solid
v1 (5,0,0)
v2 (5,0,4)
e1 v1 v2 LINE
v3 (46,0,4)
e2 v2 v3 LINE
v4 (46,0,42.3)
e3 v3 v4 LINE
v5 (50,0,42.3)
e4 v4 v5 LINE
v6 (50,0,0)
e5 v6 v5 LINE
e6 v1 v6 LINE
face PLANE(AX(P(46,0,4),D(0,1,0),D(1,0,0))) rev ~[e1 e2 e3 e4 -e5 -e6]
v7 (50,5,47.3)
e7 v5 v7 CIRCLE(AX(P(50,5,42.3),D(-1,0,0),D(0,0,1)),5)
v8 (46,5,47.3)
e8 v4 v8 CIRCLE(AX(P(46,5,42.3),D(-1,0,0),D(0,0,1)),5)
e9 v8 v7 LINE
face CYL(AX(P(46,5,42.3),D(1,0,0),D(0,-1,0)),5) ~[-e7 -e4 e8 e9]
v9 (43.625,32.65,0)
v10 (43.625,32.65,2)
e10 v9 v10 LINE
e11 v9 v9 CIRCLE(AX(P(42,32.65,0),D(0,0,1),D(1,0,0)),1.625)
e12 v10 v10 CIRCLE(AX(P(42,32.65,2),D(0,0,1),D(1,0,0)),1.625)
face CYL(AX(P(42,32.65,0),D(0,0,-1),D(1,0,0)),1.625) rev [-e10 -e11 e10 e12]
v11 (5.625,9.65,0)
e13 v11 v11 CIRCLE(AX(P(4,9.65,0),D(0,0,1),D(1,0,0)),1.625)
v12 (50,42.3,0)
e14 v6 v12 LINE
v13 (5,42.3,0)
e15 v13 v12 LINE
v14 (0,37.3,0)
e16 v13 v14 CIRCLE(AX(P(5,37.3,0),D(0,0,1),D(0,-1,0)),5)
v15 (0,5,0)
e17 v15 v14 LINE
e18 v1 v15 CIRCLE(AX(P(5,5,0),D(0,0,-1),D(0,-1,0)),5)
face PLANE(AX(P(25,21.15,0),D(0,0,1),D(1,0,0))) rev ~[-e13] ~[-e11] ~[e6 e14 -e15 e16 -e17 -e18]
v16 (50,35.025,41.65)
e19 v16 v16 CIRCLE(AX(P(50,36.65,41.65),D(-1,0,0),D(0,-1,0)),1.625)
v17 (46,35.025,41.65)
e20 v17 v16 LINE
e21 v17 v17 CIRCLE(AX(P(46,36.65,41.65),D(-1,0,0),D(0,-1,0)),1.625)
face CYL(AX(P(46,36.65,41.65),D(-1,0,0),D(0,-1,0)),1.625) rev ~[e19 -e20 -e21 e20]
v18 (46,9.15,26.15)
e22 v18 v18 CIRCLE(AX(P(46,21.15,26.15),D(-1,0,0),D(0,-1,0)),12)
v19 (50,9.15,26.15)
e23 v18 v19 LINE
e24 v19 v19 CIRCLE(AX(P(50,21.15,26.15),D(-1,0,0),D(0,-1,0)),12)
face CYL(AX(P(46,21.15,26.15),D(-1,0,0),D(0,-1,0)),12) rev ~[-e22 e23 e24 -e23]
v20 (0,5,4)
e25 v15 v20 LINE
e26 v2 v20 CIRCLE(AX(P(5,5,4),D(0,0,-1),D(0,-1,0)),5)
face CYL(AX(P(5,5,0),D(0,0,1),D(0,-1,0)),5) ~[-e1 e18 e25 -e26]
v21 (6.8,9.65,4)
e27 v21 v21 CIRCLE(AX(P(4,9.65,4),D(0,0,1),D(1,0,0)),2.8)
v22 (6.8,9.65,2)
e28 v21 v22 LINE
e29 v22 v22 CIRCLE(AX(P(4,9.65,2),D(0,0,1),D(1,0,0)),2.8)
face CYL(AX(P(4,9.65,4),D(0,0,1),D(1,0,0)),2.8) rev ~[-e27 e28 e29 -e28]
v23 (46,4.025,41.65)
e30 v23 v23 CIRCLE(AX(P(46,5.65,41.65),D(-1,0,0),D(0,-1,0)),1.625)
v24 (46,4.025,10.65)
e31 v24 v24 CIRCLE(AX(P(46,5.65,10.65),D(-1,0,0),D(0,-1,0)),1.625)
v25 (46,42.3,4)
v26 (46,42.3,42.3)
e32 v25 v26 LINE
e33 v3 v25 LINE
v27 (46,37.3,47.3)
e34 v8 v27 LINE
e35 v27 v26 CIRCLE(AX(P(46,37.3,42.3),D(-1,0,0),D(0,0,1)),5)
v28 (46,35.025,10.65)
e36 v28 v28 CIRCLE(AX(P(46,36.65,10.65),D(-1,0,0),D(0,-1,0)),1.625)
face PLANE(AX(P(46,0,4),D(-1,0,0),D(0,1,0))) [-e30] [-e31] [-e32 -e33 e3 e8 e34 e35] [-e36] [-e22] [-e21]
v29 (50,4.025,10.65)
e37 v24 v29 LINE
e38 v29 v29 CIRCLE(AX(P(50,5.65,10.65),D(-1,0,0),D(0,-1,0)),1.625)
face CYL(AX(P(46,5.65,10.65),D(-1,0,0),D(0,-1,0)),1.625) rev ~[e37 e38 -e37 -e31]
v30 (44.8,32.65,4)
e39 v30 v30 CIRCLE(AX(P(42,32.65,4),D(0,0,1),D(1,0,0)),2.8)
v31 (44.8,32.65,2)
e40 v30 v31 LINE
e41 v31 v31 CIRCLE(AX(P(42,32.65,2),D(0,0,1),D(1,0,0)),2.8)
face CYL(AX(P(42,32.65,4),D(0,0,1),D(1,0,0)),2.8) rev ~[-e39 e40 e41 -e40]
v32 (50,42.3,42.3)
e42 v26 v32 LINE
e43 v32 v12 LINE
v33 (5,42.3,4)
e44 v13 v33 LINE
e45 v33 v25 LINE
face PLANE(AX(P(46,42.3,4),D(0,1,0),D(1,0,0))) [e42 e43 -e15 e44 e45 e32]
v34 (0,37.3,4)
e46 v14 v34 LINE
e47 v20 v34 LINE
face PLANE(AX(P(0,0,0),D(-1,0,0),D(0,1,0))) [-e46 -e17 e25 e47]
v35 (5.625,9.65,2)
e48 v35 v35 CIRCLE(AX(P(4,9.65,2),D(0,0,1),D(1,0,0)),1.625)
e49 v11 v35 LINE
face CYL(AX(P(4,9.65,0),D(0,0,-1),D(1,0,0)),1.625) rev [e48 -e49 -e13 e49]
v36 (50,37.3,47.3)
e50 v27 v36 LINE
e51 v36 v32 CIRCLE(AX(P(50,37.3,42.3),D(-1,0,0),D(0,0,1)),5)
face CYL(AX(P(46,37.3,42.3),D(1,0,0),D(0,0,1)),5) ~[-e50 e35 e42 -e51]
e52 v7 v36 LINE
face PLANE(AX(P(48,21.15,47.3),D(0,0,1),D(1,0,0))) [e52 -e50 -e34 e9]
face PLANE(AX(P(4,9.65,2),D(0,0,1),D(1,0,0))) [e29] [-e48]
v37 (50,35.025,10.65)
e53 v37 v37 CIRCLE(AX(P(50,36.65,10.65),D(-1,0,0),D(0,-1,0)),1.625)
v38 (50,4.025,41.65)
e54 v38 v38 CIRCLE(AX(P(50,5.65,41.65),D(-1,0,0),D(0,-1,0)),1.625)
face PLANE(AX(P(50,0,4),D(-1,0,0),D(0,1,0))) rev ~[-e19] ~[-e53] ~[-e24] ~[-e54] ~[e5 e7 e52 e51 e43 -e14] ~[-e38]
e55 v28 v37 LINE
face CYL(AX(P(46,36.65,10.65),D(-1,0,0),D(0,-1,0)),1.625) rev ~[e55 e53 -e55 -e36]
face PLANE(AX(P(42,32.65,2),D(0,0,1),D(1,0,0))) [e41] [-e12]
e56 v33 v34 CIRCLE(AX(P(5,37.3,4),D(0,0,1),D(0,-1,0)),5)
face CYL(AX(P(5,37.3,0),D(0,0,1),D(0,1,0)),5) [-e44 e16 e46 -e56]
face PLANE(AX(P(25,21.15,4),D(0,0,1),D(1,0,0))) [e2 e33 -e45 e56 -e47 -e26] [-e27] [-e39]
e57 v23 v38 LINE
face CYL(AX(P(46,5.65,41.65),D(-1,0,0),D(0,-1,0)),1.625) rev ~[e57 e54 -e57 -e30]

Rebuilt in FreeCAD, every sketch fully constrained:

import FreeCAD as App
import Part
import Sketcher

V = App.Vector
Q = App.Units.Quantity


def edges_at(feature, points):
    """Names of the edges that pass closest to the given points."""
    edges = feature.Shape.Edges
    near = lambda p: min(range(len(edges)), key=lambda i: edges[i].distToShape(Part.Vertex(*p))[0])
    return sorted({f"Edge{near(p) + 1}" for p in points})

doc = App.newDocument("Part")
params = doc.addObject("Spreadsheet::Sheet", "Params")
for row, (alias, value) in enumerate([
    ("sketch1_diameter", "3.25 mm"),
    ("sketch1_width", "50 mm"),
    ("sketch1_height", "42.3 mm"),
    ("pad1_length", "4 mm"),
    ("sketch2_diameter", "5.6 mm"),
    ("sketch2_diameter2", "3.25 mm"),
    ("pocket1_length", "2 mm"),
    ("sketch3_width", "4 mm"),
    ("sketch3_height", "42.3 mm"),
    ("pad2_length", "43.3 mm"),
    ("sketch4_diameter", "24 mm"),
    ("sketch4_diameter2", "3.25 mm"),
    ("pocket2_length", "25 mm"),
    ("fillet_radius", "5 mm"),
], start=1):
    params.set(f"A{row}", alias)
    params.set(f"B{row}", "=" + value)
    params.setAlias(f"B{row}", alias)

body = doc.addObject("PartDesign::Body", "Body")

sketch1 = body.newObject("Sketcher::SketchObject", "Sketch")
sketch1.AttachmentSupport = (doc.getObject("XY_Plane"), [""])
sketch1.MapMode = "FlatFace"
sketch1.addGeometry([
    Part.LineSegment(V(0, 42.3, 0), V(0, 0, 0)),
    Part.LineSegment(V(0, 0, 0), V(50, 0, 0)),
    Part.LineSegment(V(50, 0, 0), V(50, 42.3, 0)),
    Part.LineSegment(V(50, 42.3, 0), V(0, 42.3, 0)),
    Part.Circle(V(4, 9.7, 0), V(0, 0, 1), 1.6),
    Part.Circle(V(42, 32.6, 0), V(0, 0, 1), 1.6),
], False)
sketch1.addConstraint([
    Sketcher.Constraint("Coincident", 0, 2, 1, 1),
    Sketcher.Constraint("Coincident", 1, 2, 2, 1),
    Sketcher.Constraint("Coincident", 2, 2, 3, 1),
    Sketcher.Constraint("Coincident", 3, 2, 0, 1),
    Sketcher.Constraint("Vertical", 0),
    Sketcher.Constraint("Horizontal", 1),
    Sketcher.Constraint("Vertical", 2),
    Sketcher.Constraint("Horizontal", 3),
    Sketcher.Constraint("Coincident", 0, 2, -1, 1),
    Sketcher.Constraint("Equal", 4, 5),
    Sketcher.Constraint("Diameter", 4, Q("3.25 mm")),
    Sketcher.Constraint("DistanceX", 1, 1, 1, 2, Q("50 mm")),
    Sketcher.Constraint("DistanceY", 0, 2, 0, 1, Q("42.3 mm")),
    Sketcher.Constraint("DistanceX", -1, 1, 4, 3, Q("4 mm")),
    Sketcher.Constraint("DistanceX", -1, 1, 5, 3, Q("42 mm")),
    Sketcher.Constraint("DistanceY", 4, 3, 5, 3, Q("23 mm")),
    Sketcher.Constraint("DistanceY", -1, 1, 4, 3, Q("9.65 mm")),
])
sketch1.setExpression("Constraints[10]", "Params.sketch1_diameter")
sketch1.setExpression("Constraints[11]", "Params.sketch1_width")
sketch1.setExpression("Constraints[12]", "Params.sketch1_height")
pad1 = body.newObject("PartDesign::Pad", "Pad")
pad1.Profile = sketch1
pad1.setExpression("Length", "Params.pad1_length")

sketch2 = body.newObject("Sketcher::SketchObject", "Sketch001")
sketch2.AttachmentSupport = (doc.getObject("XY_Plane"), [""])
sketch2.MapMode = "FlatFace"
sketch2.AttachmentOffset = App.Placement(V(0, 0, 4), App.Rotation())
sketch2.addGeometry([
    Part.Circle(V(4, 9.7, 0), V(0, 0, 1), 2.8),
    Part.Circle(V(4, 9.7, 0), V(0, 0, 1), 1.6),
    Part.Circle(V(42, 32.6, 0), V(0, 0, 1), 2.8),
    Part.Circle(V(42, 32.6, 0), V(0, 0, 1), 1.6),
], False)
sketch2.addConstraint([
    Sketcher.Constraint("Coincident", 1, 3, 0, 3),
    Sketcher.Constraint("Coincident", 3, 3, 2, 3),
    Sketcher.Constraint("Equal", 0, 2),
    Sketcher.Constraint("Equal", 1, 3),
    Sketcher.Constraint("Diameter", 0, Q("5.6 mm")),
    Sketcher.Constraint("Diameter", 1, Q("3.25 mm")),
    Sketcher.Constraint("DistanceX", -1, 1, 0, 3, Q("4 mm")),
    Sketcher.Constraint("DistanceX", -1, 1, 2, 3, Q("42 mm")),
    Sketcher.Constraint("DistanceY", 0, 3, 2, 3, Q("23 mm")),
    Sketcher.Constraint("DistanceY", -1, 1, 0, 3, Q("9.65 mm")),
])
sketch2.setExpression("Constraints[4]", "Params.sketch2_diameter")
sketch2.setExpression("Constraints[5]", "Params.sketch2_diameter2")
pocket1 = body.newObject("PartDesign::Pocket", "Pocket")
pocket1.Profile = sketch2
pocket1.setExpression("Length", "Params.pocket1_length")

sketch3 = body.newObject("Sketcher::SketchObject", "Sketch002")
sketch3.AttachmentSupport = (doc.getObject("XY_Plane"), [""])
sketch3.MapMode = "FlatFace"
sketch3.AttachmentOffset = App.Placement(V(0, 0, 4), App.Rotation())
sketch3.addGeometry([
    Part.LineSegment(V(46, 42.3, 0), V(46, 0, 0)),
    Part.LineSegment(V(46, 0, 0), V(50, 0, 0)),
    Part.LineSegment(V(50, 0, 0), V(50, 42.3, 0)),
    Part.LineSegment(V(50, 42.3, 0), V(46, 42.3, 0)),
], False)
sketch3.addConstraint([
    Sketcher.Constraint("Coincident", 0, 2, 1, 1),
    Sketcher.Constraint("Coincident", 1, 2, 2, 1),
    Sketcher.Constraint("Coincident", 2, 2, 3, 1),
    Sketcher.Constraint("Coincident", 3, 2, 0, 1),
    Sketcher.Constraint("Vertical", 0),
    Sketcher.Constraint("Horizontal", 1),
    Sketcher.Constraint("Vertical", 2),
    Sketcher.Constraint("Horizontal", 3),
    Sketcher.Constraint("PointOnObject", 0, 2, -1),
    Sketcher.Constraint("DistanceX", 1, 1, 1, 2, Q("4 mm")),
    Sketcher.Constraint("DistanceY", 0, 2, 0, 1, Q("42.3 mm")),
    Sketcher.Constraint("DistanceX", -1, 1, 0, 2, Q("46 mm")),
])
sketch3.setExpression("Constraints[9]", "Params.sketch3_width")
sketch3.setExpression("Constraints[10]", "Params.sketch3_height")
pad2 = body.newObject("PartDesign::Pad", "Pad001")
pad2.Profile = sketch3
pad2.setExpression("Length", "Params.pad2_length")

sketch4 = body.newObject("Sketcher::SketchObject", "Sketch003")
sketch4.AttachmentSupport = (doc.getObject("YZ_Plane"), [""])
sketch4.MapMode = "FlatFace"
sketch4.AttachmentOffset = App.Placement(V(0, 0, 46), App.Rotation())
sketch4.addGeometry([
    Part.Circle(V(21.1, 26.1, 0), V(0, 0, 1), 12),
    Part.Circle(V(36.6, 41.6, 0), V(0, 0, 1), 1.6),
    Part.Circle(V(5.7, 41.6, 0), V(0, 0, 1), 1.6),
    Part.Circle(V(5.7, 10.7, 0), V(0, 0, 1), 1.6),
    Part.Circle(V(36.6, 10.7, 0), V(0, 0, 1), 1.6),
], False)
sketch4.addConstraint([
    Sketcher.Constraint("Equal", 1, 2),
    Sketcher.Constraint("Equal", 2, 3),
    Sketcher.Constraint("Equal", 3, 4),
    Sketcher.Constraint("Horizontal", 1, 3, 2, 3),
    Sketcher.Constraint("Horizontal", 3, 3, 4, 3),
    Sketcher.Constraint("Vertical", 2, 3, 3, 3),
    Sketcher.Constraint("Vertical", 1, 3, 4, 3),
    Sketcher.Constraint("Diameter", 0, Q("24 mm")),
    Sketcher.Constraint("Diameter", 1, Q("3.25 mm")),
    Sketcher.Constraint("DistanceX", 2, 3, 1, 3, Q("31 mm")),
    Sketcher.Constraint("DistanceY", 3, 3, 2, 3, Q("31 mm")),
    Sketcher.Constraint("DistanceX", 0, 3, 1, 3, Q("15.5 mm")),
    Sketcher.Constraint("DistanceY", 0, 3, 1, 3, Q("15.5 mm")),
    Sketcher.Constraint("DistanceX", -1, 1, 0, 3, Q("21.15 mm")),
    Sketcher.Constraint("DistanceY", -1, 1, 0, 3, Q("26.15 mm")),
])
sketch4.setExpression("Constraints[7]", "Params.sketch4_diameter")
sketch4.setExpression("Constraints[8]", "Params.sketch4_diameter2")
pocket2 = body.newObject("PartDesign::Pocket", "Pocket001")
pocket2.Profile = sketch4
pocket2.setExpression("Length", "Params.pocket2_length")
pocket2.Reversed = True
doc.recompute()

fillet = body.newObject("PartDesign::Fillet", "Fillet")
fillet.Base = (pocket2, edges_at(pocket2, [
    (0, 0, 2),
    (0, 42.3, 2),
    (48, 42.3, 47.3),
    (48, 0, 47.3),
]))
fillet.setExpression("Radius", "Params.fillet_radius")

doc.recompute()
